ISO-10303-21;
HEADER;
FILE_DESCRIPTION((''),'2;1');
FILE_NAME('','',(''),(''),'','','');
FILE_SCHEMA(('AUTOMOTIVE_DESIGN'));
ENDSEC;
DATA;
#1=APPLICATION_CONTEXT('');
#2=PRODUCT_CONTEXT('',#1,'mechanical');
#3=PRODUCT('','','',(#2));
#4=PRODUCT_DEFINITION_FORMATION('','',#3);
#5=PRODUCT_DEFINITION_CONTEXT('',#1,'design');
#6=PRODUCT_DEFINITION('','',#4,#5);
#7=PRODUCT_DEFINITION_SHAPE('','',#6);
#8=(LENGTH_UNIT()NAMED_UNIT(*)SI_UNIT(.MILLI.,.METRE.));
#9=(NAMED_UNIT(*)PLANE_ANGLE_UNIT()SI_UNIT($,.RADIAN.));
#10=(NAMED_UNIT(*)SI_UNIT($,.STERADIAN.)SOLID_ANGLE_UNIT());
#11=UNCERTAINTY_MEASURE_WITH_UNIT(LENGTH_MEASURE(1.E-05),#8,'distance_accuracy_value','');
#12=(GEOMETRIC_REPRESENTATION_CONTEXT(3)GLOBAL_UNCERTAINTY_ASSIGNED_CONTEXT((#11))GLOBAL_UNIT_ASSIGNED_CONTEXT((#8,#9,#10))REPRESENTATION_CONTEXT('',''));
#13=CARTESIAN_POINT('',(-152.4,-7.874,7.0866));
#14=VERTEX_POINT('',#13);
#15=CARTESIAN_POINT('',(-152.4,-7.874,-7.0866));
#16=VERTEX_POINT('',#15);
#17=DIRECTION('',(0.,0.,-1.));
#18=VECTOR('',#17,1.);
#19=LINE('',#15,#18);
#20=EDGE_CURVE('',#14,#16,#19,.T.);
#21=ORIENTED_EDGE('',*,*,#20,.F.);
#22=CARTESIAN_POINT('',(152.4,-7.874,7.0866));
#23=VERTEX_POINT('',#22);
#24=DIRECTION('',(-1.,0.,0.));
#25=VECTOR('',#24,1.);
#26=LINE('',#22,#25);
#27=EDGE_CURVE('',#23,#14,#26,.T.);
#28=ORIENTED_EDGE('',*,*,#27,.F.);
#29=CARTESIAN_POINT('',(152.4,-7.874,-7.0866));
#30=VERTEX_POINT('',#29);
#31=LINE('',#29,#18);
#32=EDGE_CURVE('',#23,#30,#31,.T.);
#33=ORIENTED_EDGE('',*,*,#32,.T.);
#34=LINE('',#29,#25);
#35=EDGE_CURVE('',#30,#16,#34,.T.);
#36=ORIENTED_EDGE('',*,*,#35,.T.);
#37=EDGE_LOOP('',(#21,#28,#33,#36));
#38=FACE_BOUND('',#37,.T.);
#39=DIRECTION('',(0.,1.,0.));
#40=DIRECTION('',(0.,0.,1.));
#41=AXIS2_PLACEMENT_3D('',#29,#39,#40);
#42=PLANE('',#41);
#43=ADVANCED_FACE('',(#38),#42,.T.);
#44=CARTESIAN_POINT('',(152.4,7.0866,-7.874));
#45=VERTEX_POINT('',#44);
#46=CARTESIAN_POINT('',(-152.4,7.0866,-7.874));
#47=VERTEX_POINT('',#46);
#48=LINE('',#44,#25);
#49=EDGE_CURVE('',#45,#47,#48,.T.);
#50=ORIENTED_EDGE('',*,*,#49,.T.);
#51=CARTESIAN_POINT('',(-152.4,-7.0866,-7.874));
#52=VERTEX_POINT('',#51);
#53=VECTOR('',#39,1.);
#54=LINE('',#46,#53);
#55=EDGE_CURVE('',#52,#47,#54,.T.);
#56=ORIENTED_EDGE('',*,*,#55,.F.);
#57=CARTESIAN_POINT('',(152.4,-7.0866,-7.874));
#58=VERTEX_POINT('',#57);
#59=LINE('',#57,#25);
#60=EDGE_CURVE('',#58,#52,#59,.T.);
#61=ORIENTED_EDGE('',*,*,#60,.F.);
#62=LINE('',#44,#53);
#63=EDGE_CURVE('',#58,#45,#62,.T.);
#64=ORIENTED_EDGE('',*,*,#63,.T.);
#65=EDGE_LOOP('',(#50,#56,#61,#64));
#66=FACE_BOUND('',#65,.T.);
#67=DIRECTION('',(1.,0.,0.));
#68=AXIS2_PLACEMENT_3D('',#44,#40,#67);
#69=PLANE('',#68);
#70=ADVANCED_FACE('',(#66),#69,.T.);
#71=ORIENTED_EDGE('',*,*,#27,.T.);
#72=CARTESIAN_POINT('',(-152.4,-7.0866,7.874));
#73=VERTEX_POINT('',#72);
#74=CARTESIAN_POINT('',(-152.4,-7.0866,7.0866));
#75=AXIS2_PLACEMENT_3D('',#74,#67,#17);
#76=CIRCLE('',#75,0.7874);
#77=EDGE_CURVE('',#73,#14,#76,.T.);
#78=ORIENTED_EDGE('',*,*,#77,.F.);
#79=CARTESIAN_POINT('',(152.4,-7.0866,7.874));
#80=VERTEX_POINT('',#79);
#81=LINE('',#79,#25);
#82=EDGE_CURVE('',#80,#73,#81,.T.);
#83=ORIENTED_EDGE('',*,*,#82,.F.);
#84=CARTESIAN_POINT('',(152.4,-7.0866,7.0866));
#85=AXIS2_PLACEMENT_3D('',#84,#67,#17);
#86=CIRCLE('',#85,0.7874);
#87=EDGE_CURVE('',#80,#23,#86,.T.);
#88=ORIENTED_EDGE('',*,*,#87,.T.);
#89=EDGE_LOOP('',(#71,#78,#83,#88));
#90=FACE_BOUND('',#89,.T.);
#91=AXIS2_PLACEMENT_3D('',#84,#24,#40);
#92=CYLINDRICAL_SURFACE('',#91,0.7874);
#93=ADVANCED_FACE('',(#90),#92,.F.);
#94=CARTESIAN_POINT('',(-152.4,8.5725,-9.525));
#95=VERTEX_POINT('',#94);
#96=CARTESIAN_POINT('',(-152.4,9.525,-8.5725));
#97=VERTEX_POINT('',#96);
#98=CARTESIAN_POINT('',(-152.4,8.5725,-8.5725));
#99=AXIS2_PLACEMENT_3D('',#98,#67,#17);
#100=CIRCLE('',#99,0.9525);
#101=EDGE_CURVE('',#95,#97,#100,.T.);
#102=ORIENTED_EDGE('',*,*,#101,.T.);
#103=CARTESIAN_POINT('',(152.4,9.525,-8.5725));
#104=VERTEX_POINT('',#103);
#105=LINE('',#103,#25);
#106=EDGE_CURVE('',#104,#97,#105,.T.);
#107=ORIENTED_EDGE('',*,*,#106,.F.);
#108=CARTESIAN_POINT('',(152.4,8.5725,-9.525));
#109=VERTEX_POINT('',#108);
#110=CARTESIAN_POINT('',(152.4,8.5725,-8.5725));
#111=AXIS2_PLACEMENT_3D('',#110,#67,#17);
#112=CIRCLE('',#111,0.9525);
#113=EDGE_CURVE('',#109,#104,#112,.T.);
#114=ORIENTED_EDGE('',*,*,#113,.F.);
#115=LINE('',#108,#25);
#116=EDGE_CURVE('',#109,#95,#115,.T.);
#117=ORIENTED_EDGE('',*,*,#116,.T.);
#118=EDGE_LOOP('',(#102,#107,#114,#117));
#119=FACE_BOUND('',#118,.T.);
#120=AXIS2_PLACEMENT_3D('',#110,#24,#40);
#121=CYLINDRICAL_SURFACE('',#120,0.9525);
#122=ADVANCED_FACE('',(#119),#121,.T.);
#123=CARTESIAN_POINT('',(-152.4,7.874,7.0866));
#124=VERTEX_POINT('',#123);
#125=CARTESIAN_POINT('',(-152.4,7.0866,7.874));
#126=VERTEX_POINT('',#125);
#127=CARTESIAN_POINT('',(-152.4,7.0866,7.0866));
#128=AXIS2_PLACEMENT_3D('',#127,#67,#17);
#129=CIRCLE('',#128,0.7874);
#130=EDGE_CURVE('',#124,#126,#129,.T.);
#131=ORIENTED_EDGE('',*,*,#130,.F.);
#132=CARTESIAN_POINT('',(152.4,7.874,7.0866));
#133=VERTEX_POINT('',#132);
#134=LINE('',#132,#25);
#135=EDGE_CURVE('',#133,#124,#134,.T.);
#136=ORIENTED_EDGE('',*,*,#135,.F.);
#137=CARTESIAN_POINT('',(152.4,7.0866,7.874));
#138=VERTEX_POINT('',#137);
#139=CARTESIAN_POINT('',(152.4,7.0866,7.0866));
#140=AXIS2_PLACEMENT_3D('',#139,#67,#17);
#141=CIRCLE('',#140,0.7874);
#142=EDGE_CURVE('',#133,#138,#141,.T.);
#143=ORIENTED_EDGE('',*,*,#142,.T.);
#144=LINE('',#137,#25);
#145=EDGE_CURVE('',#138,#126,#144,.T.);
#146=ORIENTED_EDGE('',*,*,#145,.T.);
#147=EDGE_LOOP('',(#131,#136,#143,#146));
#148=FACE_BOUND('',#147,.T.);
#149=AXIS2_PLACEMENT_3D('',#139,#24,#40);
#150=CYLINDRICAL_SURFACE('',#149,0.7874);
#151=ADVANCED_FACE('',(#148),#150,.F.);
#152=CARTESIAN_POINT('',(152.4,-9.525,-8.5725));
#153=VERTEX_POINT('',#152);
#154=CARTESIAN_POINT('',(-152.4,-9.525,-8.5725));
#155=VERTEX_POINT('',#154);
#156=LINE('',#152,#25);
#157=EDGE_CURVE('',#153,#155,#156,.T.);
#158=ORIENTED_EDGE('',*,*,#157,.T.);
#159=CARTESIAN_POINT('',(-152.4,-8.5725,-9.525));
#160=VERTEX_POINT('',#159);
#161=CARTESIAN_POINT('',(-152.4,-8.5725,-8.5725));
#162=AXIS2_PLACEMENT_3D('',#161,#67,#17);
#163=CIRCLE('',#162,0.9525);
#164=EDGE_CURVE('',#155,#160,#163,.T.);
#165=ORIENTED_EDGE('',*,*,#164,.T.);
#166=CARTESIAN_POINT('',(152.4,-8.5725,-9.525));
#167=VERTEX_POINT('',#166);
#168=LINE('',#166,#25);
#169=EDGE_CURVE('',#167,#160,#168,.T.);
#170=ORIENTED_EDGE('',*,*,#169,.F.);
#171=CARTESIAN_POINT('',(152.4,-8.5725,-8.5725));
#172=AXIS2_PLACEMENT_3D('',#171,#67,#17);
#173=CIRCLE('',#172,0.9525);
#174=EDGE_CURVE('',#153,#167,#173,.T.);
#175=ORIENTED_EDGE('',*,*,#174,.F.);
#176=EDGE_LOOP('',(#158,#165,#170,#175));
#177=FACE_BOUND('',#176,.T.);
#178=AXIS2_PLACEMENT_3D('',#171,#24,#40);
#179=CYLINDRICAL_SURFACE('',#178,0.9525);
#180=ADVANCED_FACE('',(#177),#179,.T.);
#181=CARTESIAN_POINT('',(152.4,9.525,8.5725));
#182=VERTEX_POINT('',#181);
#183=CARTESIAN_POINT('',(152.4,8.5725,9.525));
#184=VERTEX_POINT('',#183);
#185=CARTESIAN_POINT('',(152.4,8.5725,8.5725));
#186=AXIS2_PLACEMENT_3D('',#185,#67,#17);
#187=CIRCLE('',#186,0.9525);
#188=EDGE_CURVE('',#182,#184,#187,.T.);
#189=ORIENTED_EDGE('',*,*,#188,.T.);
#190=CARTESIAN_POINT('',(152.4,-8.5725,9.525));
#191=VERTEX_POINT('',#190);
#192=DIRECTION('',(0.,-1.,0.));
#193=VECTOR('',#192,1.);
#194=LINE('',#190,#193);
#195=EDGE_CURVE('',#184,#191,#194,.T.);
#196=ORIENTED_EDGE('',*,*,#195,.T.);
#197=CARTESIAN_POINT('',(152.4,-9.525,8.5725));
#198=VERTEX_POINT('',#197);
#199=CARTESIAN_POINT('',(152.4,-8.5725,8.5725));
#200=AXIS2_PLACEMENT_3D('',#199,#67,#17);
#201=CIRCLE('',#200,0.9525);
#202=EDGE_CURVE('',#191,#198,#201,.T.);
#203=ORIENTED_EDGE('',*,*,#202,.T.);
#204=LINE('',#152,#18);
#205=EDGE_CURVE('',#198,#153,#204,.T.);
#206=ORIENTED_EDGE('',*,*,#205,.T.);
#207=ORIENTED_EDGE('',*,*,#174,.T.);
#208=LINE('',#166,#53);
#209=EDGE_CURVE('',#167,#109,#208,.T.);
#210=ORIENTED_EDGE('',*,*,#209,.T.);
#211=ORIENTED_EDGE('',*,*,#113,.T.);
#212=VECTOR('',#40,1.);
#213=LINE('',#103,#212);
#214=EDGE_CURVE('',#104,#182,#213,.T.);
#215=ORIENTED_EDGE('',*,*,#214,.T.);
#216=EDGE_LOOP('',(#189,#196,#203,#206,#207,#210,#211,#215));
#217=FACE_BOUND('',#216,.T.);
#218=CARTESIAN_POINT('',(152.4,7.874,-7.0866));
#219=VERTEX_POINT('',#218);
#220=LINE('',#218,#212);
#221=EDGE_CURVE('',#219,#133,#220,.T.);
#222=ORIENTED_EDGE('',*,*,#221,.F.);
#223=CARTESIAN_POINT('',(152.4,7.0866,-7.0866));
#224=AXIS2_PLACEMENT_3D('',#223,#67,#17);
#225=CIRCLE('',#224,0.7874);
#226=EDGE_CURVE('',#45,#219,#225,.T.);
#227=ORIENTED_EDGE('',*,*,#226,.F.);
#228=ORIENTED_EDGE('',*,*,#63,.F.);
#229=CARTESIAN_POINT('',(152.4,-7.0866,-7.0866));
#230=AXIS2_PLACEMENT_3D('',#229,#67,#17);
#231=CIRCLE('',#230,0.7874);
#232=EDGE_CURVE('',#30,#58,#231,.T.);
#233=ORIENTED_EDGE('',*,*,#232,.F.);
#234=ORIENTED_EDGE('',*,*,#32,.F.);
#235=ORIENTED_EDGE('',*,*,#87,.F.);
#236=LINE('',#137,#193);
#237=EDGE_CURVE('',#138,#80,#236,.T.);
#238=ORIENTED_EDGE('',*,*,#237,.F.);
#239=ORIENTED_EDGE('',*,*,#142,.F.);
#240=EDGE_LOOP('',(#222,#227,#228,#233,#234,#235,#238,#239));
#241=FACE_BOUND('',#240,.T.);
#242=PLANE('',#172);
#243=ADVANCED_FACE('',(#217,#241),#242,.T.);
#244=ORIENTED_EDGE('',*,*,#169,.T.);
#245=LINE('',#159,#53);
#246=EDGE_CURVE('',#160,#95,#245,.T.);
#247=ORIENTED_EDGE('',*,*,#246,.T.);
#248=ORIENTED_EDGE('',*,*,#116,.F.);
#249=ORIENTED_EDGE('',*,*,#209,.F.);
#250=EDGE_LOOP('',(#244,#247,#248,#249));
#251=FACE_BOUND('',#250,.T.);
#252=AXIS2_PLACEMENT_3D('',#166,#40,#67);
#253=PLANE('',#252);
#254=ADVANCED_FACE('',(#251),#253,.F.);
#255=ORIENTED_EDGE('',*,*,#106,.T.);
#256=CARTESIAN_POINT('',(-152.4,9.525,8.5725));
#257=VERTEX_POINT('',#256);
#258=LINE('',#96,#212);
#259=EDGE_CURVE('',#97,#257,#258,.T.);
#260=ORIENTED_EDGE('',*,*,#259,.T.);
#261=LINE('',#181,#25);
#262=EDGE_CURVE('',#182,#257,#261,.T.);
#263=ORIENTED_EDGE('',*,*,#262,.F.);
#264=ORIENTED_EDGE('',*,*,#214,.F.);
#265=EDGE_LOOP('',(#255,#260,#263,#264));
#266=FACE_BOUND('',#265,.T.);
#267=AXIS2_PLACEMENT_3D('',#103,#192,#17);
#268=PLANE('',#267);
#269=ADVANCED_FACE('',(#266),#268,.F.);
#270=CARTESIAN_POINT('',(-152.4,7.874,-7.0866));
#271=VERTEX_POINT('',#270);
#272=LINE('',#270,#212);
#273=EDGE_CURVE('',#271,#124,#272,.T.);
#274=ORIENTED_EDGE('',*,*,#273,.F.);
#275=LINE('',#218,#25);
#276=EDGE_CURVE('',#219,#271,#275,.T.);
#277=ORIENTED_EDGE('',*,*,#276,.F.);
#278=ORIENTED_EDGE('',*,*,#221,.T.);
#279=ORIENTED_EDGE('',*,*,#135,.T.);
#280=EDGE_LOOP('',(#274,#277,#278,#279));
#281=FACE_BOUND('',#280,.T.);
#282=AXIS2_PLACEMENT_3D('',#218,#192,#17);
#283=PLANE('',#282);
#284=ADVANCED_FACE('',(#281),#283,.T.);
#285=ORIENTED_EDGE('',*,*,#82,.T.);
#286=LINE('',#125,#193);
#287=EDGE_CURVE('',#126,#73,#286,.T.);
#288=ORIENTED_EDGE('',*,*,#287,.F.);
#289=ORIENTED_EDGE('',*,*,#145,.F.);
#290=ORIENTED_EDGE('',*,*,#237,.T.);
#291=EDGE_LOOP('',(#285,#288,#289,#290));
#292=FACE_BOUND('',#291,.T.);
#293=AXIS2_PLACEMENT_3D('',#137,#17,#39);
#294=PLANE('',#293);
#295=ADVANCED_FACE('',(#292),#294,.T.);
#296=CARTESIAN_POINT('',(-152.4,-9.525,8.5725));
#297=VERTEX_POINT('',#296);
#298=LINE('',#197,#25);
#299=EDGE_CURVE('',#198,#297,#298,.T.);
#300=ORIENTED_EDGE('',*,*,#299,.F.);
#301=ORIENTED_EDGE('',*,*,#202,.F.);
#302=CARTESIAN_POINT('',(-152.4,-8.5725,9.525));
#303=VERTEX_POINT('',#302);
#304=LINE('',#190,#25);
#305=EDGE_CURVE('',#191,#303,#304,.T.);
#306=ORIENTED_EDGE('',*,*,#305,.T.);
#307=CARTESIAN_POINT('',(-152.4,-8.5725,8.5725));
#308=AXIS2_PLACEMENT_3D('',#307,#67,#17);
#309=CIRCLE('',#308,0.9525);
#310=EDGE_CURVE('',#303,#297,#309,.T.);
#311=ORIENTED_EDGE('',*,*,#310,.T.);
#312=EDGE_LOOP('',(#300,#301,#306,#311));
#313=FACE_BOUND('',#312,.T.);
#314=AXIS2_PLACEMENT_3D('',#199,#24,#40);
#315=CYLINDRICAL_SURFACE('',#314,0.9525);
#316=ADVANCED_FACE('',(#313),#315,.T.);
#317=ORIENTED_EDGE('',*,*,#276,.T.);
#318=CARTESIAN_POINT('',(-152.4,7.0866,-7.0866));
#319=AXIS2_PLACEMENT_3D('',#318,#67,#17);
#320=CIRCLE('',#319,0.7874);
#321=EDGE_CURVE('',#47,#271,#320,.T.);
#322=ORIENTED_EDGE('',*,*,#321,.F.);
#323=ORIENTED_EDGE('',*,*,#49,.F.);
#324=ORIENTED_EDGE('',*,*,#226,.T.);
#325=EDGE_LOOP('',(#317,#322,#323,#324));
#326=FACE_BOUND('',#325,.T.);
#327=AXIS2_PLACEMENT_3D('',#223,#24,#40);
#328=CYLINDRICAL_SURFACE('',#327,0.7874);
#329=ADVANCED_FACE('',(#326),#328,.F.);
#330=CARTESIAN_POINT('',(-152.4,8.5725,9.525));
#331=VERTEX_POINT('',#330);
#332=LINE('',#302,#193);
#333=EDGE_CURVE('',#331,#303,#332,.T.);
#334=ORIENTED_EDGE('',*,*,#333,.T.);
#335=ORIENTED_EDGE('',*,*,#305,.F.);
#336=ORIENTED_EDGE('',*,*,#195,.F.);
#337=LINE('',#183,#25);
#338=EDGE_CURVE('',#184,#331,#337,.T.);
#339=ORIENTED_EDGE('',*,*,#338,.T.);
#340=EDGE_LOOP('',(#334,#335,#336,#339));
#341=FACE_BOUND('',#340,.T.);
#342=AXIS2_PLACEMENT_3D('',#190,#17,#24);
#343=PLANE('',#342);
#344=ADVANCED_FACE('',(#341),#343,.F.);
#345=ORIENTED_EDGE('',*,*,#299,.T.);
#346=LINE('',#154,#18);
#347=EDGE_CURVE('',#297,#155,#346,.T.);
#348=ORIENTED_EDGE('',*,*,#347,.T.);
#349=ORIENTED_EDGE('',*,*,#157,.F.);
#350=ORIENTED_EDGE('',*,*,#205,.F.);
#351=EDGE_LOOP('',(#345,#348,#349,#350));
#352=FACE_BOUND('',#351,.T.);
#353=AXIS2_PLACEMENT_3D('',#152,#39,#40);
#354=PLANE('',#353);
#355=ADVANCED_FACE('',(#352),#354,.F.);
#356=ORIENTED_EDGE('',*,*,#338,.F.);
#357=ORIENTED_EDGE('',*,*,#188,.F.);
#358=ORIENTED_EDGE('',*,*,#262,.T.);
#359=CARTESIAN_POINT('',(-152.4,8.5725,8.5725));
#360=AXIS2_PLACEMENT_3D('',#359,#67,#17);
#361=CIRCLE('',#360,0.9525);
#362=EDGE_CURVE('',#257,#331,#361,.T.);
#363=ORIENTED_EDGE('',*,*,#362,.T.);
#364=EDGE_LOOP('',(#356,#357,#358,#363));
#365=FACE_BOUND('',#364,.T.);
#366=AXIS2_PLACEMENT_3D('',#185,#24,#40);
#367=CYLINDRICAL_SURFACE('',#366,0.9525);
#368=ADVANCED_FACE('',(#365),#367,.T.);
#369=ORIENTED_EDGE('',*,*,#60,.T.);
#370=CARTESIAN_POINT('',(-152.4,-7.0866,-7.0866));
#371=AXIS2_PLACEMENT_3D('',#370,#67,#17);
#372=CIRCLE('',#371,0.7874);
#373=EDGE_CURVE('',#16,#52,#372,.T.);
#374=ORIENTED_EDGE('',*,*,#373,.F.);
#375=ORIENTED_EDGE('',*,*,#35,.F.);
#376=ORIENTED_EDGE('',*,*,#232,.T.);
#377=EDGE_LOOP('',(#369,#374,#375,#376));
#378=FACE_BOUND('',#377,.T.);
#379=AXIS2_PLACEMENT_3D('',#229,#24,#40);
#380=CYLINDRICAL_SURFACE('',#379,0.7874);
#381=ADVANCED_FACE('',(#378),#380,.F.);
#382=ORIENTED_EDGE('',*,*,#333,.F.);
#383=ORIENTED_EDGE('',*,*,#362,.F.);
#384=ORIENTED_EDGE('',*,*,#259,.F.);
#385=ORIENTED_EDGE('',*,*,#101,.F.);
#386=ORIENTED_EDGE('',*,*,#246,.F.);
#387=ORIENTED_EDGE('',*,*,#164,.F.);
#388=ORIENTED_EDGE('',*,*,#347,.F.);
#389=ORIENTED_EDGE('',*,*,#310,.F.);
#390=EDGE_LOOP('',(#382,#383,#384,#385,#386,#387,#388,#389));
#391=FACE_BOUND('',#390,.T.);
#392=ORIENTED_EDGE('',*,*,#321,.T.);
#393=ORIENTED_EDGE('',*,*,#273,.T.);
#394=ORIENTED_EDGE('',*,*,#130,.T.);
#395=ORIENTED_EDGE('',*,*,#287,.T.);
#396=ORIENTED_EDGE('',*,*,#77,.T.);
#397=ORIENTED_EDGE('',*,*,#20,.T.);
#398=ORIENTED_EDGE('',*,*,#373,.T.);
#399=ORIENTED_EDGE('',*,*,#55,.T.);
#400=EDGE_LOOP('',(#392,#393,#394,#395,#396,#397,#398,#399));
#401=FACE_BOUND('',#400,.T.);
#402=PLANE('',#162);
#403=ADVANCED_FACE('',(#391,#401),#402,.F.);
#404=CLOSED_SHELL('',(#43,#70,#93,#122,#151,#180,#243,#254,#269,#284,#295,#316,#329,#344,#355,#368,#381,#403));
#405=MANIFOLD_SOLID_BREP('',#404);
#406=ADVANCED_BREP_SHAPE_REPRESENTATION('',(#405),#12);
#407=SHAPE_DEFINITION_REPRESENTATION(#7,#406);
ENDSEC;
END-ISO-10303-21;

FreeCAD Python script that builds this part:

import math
import FreeCAD as App
import Part
import Sketcher
Q = App.Units.Quantity

doc = App.newDocument("Part")
body = doc.addObject("PartDesign::Body", "Body")

# Sketch on YZ plane
sketch1 = body.newObject("Sketcher::SketchObject", "Sketch")
sketch1.AttachmentSupport = (doc.getObject("YZ_Plane"), [""])
sketch1.MapMode = "FlatFace"
sketch1.addGeometry(Part.LineSegment(App.Vector(-8.5725, -9.525, 0), App.Vector(8.5725, -9.525, 0)), False)
sketch1.addGeometry(Part.ArcOfCircle(Part.Circle(App.Vector(8.5725, -8.5725, 0), App.Vector(0, 0, 1), 0.9525), math.radians(-90), math.radians(0)), False)
sketch1.addGeometry(Part.LineSegment(App.Vector(9.525, -8.5725, 0), App.Vector(9.525, 8.5725, 0)), False)
sketch1.addGeometry(Part.ArcOfCircle(Part.Circle(App.Vector(8.5725, 8.5725, 0), App.Vector(0, 0, 1), 0.9525), math.radians(0), math.radians(90)), False)
sketch1.addGeometry(Part.LineSegment(App.Vector(8.5725, 9.525, 0), App.Vector(-8.5725, 9.525, 0)), False)
sketch1.addGeometry(Part.ArcOfCircle(Part.Circle(App.Vector(-8.5725, 8.5725, 0), App.Vector(0, 0, 1), 0.9525), math.radians(90), math.radians(180)), False)
sketch1.addGeometry(Part.LineSegment(App.Vector(-9.525, 8.5725, 0), App.Vector(-9.525, -8.5725, 0)), False)
sketch1.addGeometry(Part.ArcOfCircle(Part.Circle(App.Vector(-8.5725, -8.5725, 0), App.Vector(0, 0, 1), 0.9525), math.radians(180), math.radians(270)), False)
sketch1.addGeometry(Part.ArcOfCircle(Part.Circle(App.Vector(7.0866, -7.0866, 0), App.Vector(0, 0, 1), 0.7874), math.radians(-90), math.radians(0)), False)
sketch1.addGeometry(Part.LineSegment(App.Vector(7.0866, -7.874, 0), App.Vector(-7.0866, -7.874, 0)), False)
sketch1.addGeometry(Part.ArcOfCircle(Part.Circle(App.Vector(-7.0866, -7.0866, 0), App.Vector(0, 0, 1), 0.7874), math.radians(180), math.radians(270)), False)
sketch1.addGeometry(Part.LineSegment(App.Vector(-7.874, -7.0866, 0), App.Vector(-7.874, 7.0866, 0)), False)
sketch1.addGeometry(Part.ArcOfCircle(Part.Circle(App.Vector(-7.0866, 7.0866, 0), App.Vector(0, 0, 1), 0.7874), math.radians(90), math.radians(180)), False)
sketch1.addGeometry(Part.LineSegment(App.Vector(-7.0866, 7.874, 0), App.Vector(7.0866, 7.874, 0)), False)
sketch1.addGeometry(Part.ArcOfCircle(Part.Circle(App.Vector(7.0866, 7.0866, 0), App.Vector(0, 0, 1), 0.7874), math.radians(0), math.radians(90)), False)
sketch1.addGeometry(Part.LineSegment(App.Vector(7.874, 7.0866, 0), App.Vector(7.874, -7.0866, 0)), False)
sketch1.addConstraint(Sketcher.Constraint("Tangent", 0, 2, 1, 1))
sketch1.addConstraint(Sketcher.Constraint("Tangent", 1, 2, 2, 1))
sketch1.addConstraint(Sketcher.Constraint("Tangent", 2, 2, 3, 1))
sketch1.addConstraint(Sketcher.Constraint("Tangent", 3, 2, 4, 1))
sketch1.addConstraint(Sketcher.Constraint("Tangent", 4, 2, 5, 1))
sketch1.addConstraint(Sketcher.Constraint("Tangent", 5, 2, 6, 1))
sketch1.addConstraint(Sketcher.Constraint("Tangent", 6, 2, 7, 1))
sketch1.addConstraint(Sketcher.Constraint("Tangent", 7, 2, 0, 1))
sketch1.addConstraint(Sketcher.Constraint("Tangent", 8, 1, 9, 1))
sketch1.addConstraint(Sketcher.Constraint("Tangent", 9, 2, 10, 2))
sketch1.addConstraint(Sketcher.Constraint("Tangent", 10, 1, 11, 1))
sketch1.addConstraint(Sketcher.Constraint("Tangent", 11, 2, 12, 2))
sketch1.addConstraint(Sketcher.Constraint("Tangent", 12, 1, 13, 1))
sketch1.addConstraint(Sketcher.Constraint("Tangent", 13, 2, 14, 2))
sketch1.addConstraint(Sketcher.Constraint("Tangent", 14, 1, 15, 1))
sketch1.addConstraint(Sketcher.Constraint("Tangent", 15, 2, 8, 2))
sketch1.addConstraint(Sketcher.Constraint("Horizontal", 0))
sketch1.addConstraint(Sketcher.Constraint("Vertical", 2))
sketch1.addConstraint(Sketcher.Constraint("Horizontal", 4))
sketch1.addConstraint(Sketcher.Constraint("Vertical", 6))
sketch1.addConstraint(Sketcher.Constraint("Horizontal", 9))
sketch1.addConstraint(Sketcher.Constraint("Vertical", 11))
sketch1.addConstraint(Sketcher.Constraint("Horizontal", 13))
sketch1.addConstraint(Sketcher.Constraint("Vertical", 15))
sketch1.addConstraint(Sketcher.Constraint("Equal", 1, 3))
sketch1.addConstraint(Sketcher.Constraint("Equal", 3, 5))
sketch1.addConstraint(Sketcher.Constraint("Equal", 5, 7))
sketch1.addConstraint(Sketcher.Constraint("Equal", 8, 10))
sketch1.addConstraint(Sketcher.Constraint("Equal", 10, 12))
sketch1.addConstraint(Sketcher.Constraint("Equal", 12, 14))
sketch1.addConstraint(Sketcher.Constraint("Symmetric", 1, 3, 5, 3, -1, 1))
sketch1.addConstraint(Sketcher.Constraint("Symmetric", 8, 3, 12, 3, -1, 1))
sketch1.addConstraint(Sketcher.Constraint("Equal", 4, 2))
sketch1.addConstraint(Sketcher.Constraint("Equal", 13, 11))
sketch1.addConstraint(Sketcher.Constraint("Radius", 8, Q("0.031 in")))
sketch1.addConstraint(Sketcher.Constraint("Radius", 1, Q("0.0375 in")))
sketch1.addConstraint(Sketcher.Constraint("DistanceX", 0, 1, 0, 2, Q("0.675 in")))
sketch1.addConstraint(Sketcher.Constraint("DistanceX", 9, 2, 9, 1, Q("0.558 in")))
pad1 = body.newObject("PartDesign::Pad", "Pad")
pad1.Profile = sketch1
pad1.Type = "TwoLengths"
pad1.Length = Q("6 in")
pad1.Length2 = Q("6 in")

doc.recompute()
